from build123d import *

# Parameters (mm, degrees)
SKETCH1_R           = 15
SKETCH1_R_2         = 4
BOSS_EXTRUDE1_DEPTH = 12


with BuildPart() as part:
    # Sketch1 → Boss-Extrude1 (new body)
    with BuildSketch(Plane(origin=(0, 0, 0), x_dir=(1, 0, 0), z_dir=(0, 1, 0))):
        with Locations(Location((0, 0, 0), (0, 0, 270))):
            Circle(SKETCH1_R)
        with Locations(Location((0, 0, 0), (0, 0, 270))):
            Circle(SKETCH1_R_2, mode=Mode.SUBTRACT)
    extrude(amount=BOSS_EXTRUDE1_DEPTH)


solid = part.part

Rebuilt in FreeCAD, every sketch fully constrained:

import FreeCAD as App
import Part
import Sketcher
Q = App.Units.Quantity

doc = App.newDocument("Part")
params = doc.addObject("Spreadsheet::Sheet", "Params")
for row, (alias, value) in enumerate([
    ("sketch1_diameter", "30 mm"),
    ("sketch1_diameter2", "8 mm"),
    ("pad1_length", "12 mm"),
], start=1):
    params.set(f"A{row}", alias)
    params.set(f"B{row}", "=" + value)
    params.setAlias(f"B{row}", alias)

body = doc.addObject("PartDesign::Body", "Body")

# Sketch on XZ plane
sketch1 = body.newObject("Sketcher::SketchObject", "Sketch")
sketch1.AttachmentSupport = (doc.getObject("XZ_Plane"), [""])
sketch1.MapMode = "FlatFace"
sketch1.addGeometry([
    Part.Circle(App.Vector(0, 0, 0), App.Vector(0, 0, 1), 15),
    Part.Circle(App.Vector(0, 0, 0), App.Vector(0, 0, 1), 4),
], False)
sketch1.addConstraint([
    Sketcher.Constraint("Coincident", 0, 3, -1, 1),
    Sketcher.Constraint("Coincident", 1, 3, -1, 1),
    Sketcher.Constraint("Diameter", 0, Q("30 mm")),
    Sketcher.Constraint("Diameter", 1, Q("8 mm")),
])
sketch1.setExpression("Constraints[2]", "Params.sketch1_diameter")
sketch1.setExpression("Constraints[3]", "Params.sketch1_diameter2")
pad1 = body.newObject("PartDesign::Pad", "Pad")
pad1.Profile = sketch1
pad1.setExpression("Length", "Params.pad1_length")
pad1.Reversed = True

doc.recompute()
